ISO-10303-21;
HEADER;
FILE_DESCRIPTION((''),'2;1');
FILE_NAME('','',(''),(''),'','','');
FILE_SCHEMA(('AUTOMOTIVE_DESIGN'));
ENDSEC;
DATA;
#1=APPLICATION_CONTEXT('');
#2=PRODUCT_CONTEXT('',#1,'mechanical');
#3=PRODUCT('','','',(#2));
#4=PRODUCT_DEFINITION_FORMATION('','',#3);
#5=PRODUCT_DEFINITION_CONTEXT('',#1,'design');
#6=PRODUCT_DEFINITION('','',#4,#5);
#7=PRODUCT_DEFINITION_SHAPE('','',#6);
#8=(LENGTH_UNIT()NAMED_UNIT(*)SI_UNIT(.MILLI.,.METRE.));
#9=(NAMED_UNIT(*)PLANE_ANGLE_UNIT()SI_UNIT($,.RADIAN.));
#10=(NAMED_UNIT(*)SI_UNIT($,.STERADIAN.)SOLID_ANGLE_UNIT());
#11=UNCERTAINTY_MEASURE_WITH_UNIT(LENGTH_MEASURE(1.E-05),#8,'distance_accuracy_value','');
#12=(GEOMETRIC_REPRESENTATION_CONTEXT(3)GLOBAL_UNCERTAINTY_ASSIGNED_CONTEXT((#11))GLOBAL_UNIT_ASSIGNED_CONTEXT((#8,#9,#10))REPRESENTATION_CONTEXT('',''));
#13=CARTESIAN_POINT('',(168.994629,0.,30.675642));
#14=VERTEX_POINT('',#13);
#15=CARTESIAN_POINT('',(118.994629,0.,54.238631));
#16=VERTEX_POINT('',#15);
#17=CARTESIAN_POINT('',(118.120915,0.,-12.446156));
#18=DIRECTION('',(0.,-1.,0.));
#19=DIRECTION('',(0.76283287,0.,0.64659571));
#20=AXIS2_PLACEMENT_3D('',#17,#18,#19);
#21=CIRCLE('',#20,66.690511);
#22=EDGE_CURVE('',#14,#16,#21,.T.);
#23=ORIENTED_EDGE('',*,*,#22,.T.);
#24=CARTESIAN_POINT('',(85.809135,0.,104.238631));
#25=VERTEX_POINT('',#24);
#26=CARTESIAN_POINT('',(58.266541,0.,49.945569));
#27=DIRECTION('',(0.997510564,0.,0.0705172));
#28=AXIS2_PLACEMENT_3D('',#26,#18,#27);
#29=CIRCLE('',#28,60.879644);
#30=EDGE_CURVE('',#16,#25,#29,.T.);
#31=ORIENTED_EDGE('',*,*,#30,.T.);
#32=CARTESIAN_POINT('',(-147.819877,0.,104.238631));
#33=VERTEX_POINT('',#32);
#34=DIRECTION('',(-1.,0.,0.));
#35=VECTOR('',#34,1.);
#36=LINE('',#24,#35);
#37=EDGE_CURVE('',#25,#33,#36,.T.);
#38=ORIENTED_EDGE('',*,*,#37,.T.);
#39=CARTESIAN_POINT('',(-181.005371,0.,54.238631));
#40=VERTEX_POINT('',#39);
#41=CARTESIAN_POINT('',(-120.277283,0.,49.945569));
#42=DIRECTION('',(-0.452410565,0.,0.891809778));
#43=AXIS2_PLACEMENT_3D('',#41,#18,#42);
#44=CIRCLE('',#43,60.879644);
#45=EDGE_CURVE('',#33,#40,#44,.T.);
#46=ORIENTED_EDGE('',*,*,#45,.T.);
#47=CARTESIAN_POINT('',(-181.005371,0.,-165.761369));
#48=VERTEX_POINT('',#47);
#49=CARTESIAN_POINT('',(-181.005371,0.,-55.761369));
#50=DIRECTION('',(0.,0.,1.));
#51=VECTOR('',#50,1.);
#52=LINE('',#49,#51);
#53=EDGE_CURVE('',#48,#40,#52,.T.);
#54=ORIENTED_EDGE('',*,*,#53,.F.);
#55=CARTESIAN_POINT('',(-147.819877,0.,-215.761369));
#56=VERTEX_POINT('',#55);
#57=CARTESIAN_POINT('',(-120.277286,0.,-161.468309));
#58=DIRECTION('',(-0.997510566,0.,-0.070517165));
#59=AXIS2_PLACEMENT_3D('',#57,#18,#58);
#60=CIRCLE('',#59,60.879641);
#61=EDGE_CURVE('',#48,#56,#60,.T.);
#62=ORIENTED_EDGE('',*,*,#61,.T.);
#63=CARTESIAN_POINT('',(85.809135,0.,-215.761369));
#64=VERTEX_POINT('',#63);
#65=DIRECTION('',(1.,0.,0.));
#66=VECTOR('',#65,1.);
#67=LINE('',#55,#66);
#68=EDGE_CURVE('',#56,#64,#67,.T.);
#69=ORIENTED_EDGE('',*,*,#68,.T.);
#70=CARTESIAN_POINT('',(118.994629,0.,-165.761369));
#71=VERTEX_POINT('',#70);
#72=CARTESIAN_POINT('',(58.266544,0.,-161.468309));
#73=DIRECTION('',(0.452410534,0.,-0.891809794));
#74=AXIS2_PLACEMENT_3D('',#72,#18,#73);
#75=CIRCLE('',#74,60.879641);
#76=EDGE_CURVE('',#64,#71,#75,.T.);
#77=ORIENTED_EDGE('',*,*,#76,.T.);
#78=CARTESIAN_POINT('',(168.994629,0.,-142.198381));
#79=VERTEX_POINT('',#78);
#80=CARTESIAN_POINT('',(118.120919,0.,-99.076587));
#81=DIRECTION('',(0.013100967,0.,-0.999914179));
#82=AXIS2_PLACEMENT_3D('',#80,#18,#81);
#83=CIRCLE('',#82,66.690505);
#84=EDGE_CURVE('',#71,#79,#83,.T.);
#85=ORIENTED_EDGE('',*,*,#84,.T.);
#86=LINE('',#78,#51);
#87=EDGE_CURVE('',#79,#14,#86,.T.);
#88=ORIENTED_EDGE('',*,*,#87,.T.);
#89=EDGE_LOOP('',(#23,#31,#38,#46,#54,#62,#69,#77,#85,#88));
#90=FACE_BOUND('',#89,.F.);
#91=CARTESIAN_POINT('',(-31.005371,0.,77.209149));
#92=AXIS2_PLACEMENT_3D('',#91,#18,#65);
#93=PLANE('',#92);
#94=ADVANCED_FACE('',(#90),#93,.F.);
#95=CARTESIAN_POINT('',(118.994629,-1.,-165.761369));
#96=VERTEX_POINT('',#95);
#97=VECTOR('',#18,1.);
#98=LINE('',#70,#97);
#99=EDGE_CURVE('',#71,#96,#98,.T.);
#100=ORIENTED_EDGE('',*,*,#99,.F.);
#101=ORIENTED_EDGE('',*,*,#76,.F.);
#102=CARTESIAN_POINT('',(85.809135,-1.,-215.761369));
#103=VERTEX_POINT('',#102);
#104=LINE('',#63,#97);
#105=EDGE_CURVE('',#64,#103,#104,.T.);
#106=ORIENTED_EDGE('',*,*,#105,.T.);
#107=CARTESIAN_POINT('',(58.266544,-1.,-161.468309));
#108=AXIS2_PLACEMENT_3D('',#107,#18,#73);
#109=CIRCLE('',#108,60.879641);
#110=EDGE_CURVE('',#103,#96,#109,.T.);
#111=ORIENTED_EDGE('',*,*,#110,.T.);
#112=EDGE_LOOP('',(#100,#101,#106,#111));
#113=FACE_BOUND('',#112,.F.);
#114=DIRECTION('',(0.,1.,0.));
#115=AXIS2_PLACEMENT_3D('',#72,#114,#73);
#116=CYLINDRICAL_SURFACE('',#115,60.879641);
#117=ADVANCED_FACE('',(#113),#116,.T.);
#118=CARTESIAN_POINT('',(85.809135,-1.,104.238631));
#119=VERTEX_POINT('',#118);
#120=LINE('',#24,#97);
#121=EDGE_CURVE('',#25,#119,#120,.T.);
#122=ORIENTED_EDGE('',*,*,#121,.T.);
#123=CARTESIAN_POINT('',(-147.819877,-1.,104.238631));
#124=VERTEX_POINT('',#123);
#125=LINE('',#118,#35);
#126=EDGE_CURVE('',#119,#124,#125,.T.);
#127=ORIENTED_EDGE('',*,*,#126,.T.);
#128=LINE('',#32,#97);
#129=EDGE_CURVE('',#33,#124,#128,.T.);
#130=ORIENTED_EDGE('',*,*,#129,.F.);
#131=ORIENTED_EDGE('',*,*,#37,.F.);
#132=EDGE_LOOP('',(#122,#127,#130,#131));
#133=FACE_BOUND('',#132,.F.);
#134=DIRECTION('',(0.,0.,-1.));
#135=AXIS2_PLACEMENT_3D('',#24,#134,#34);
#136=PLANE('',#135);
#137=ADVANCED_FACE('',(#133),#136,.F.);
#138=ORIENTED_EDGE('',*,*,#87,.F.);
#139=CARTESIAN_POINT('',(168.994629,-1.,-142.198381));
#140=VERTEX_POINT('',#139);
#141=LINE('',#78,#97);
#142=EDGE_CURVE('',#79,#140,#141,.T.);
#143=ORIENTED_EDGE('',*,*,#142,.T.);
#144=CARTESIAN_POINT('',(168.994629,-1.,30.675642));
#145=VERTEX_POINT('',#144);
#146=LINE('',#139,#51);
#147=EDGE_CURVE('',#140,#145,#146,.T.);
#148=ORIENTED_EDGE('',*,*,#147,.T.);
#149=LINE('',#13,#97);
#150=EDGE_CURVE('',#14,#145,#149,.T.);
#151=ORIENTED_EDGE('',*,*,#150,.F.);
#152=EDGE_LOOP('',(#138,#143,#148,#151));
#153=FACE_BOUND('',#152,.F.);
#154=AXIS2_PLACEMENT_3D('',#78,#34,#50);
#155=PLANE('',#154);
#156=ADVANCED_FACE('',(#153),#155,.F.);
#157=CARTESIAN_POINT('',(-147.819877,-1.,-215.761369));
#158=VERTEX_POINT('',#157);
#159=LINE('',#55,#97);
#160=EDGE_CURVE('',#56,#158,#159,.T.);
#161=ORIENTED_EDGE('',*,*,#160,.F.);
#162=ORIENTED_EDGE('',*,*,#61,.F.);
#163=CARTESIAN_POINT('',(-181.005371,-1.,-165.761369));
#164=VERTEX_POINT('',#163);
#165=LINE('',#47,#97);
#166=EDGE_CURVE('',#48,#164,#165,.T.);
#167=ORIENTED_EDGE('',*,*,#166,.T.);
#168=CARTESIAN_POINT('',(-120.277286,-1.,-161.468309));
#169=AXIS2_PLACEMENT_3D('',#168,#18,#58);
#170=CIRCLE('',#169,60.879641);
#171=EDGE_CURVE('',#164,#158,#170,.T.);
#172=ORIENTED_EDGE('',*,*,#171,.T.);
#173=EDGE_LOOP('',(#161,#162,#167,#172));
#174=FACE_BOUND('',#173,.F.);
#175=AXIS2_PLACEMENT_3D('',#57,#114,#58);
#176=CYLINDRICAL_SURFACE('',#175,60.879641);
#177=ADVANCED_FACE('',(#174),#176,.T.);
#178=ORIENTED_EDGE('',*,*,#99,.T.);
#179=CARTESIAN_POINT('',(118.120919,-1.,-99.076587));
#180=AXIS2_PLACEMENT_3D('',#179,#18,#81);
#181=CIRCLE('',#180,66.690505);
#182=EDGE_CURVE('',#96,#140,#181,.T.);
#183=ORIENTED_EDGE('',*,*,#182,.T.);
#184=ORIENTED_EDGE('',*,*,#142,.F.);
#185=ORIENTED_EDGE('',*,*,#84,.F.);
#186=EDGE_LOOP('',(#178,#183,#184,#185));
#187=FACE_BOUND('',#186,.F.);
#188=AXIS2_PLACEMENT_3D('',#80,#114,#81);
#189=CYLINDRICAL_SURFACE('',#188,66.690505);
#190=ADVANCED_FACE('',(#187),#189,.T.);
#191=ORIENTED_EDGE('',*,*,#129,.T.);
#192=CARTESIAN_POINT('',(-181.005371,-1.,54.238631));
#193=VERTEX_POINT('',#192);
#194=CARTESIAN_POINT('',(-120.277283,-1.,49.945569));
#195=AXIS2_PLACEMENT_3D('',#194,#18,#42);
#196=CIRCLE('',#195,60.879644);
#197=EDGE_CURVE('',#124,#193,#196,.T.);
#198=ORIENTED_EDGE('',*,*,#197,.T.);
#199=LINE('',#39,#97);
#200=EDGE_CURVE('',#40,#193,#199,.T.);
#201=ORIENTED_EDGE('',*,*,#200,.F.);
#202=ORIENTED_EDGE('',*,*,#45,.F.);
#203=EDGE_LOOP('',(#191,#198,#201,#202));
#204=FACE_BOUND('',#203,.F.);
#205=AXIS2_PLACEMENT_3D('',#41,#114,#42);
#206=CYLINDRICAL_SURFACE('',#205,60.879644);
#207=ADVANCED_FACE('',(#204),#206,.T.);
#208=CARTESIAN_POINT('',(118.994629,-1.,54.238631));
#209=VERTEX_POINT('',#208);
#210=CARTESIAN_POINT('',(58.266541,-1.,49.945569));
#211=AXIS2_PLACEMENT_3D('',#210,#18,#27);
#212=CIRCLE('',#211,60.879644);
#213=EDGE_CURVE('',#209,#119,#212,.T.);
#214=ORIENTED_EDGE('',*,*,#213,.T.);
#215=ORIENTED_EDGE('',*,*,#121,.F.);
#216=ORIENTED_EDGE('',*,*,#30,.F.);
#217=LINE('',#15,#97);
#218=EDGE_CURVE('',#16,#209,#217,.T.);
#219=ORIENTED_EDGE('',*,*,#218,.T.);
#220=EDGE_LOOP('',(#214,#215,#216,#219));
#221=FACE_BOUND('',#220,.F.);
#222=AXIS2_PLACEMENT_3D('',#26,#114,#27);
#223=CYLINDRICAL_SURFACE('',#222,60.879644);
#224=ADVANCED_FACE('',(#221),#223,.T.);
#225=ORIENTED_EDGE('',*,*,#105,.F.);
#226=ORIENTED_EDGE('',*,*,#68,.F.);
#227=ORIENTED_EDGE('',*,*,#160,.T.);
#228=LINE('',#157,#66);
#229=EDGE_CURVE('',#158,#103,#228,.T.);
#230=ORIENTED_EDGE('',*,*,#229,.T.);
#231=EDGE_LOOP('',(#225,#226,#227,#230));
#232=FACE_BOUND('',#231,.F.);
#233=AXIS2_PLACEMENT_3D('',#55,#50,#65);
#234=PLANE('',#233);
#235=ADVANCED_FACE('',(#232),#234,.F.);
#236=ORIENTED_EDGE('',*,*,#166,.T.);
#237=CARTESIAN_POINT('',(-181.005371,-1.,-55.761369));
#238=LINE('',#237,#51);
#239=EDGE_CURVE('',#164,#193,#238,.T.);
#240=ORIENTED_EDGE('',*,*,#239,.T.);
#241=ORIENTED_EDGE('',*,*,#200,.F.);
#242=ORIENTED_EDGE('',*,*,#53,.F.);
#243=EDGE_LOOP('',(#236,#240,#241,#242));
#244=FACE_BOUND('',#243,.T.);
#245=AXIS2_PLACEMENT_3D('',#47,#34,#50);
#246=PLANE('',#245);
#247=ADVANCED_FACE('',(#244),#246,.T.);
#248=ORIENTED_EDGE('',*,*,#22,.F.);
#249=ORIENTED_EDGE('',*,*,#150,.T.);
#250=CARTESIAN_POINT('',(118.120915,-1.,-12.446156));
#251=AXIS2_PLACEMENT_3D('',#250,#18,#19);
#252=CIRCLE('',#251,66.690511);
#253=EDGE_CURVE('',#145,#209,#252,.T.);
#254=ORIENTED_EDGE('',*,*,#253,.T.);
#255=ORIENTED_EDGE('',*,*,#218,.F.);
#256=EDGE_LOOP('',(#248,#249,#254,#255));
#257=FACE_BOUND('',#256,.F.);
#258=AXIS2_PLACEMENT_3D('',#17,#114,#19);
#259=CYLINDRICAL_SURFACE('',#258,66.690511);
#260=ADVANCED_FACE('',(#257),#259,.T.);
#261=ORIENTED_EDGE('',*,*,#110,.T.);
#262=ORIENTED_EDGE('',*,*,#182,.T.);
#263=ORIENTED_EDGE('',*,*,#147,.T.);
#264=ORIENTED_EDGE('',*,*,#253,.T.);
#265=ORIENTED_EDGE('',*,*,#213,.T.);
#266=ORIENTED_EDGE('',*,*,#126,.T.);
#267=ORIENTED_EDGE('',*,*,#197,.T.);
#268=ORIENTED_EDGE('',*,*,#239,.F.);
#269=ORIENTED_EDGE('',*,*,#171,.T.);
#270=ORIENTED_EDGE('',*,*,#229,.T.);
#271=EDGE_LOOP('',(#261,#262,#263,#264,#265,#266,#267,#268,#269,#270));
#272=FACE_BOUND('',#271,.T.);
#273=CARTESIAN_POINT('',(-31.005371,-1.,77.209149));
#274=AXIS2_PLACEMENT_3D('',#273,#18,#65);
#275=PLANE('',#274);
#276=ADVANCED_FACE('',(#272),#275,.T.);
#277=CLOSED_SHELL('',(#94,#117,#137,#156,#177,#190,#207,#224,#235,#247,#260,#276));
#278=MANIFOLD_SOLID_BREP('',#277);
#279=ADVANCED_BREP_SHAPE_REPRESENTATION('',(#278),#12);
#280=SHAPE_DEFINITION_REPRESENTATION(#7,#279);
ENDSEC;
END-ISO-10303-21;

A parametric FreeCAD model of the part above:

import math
import FreeCAD as App
import Part
import Sketcher

V = App.Vector

doc = App.newDocument("Part")
body = doc.addObject("PartDesign::Body", "Body")

sketch1 = doc.addObject("Sketcher::SketchObject", "Sketch")
body.addObject(sketch1)
sketch1.AttachmentSupport = (doc.XZ_Plane, [""])
sketch1.MapMode = "FlatFace"
sketch1.addGeometry([
    Part.LineSegment(V(86, 104, 0), V(-148, 104, 0)),
    Part.ArcOfCircle(Part.Circle(V(-120, 50, 0), V(0, 0, 1), 61), math.radians(117), math.radians(176)),
    Part.LineSegment(V(-181, 54, 0), V(-181, -166, 0)),
    Part.ArcOfCircle(Part.Circle(V(-120, -161, 0), V(0, 0, 1), 61), math.radians(-176), math.radians(-117)),
    Part.LineSegment(V(-148, -216, 0), V(86, -216, 0)),
    Part.ArcOfCircle(Part.Circle(V(58, -161, 0), V(0, 0, 1), 61), math.radians(-63), math.radians(-4)),
    Part.ArcOfCircle(Part.Circle(V(118, -99, 0), V(0, 0, 1), 67), math.radians(-89), math.radians(-40)),
    Part.LineSegment(V(169, -142, 0), V(169, 31, 0)),
    Part.ArcOfCircle(Part.Circle(V(118, -12, 0), V(0, 0, 1), 67), math.radians(40), math.radians(89)),
    Part.ArcOfCircle(Part.Circle(V(58, 50, 0), V(0, 0, 1), 61), math.radians(4), math.radians(63)),
], False)
sketch1.addConstraint([
    Sketcher.Constraint("Coincident", 0, 2, 1, 1),
    Sketcher.Constraint("Coincident", 1, 2, 2, 1),
    Sketcher.Constraint("Coincident", 2, 2, 3, 1),
    Sketcher.Constraint("Coincident", 3, 2, 4, 1),
    Sketcher.Constraint("Coincident", 4, 2, 5, 1),
    Sketcher.Constraint("Coincident", 5, 2, 6, 1),
    Sketcher.Constraint("Coincident", 6, 2, 7, 1),
    Sketcher.Constraint("Coincident", 7, 2, 8, 1),
    Sketcher.Constraint("Coincident", 8, 2, 9, 1),
    Sketcher.Constraint("Coincident", 9, 2, 0, 1),
    Sketcher.Constraint("Horizontal", 0),
    Sketcher.Constraint("Vertical", 2),
    Sketcher.Constraint("Horizontal", 4),
    Sketcher.Constraint("Vertical", 7),
    Sketcher.Constraint("Equal", 3, 5),
    Sketcher.Constraint("Equal", 1, 9),
    Sketcher.Constraint("Horizontal", 3, 3, 5, 3),
    Sketcher.Constraint("Horizontal", 1, 3, 9, 3),
    Sketcher.Constraint("Horizontal", 2, 2, 5, 2),
    Sketcher.Constraint("Horizontal", 1, 2, 8, 2),
    Sketcher.Constraint("Vertical", 0, 2, 3, 2),
    Sketcher.Constraint("Vertical", 5, 2, 8, 2),
    Sketcher.Constraint("DistanceY", 2, 2, 2, 1, 220.0),
    Sketcher.Constraint("DistanceY", 1, 2, 0, 2, 50.0),
    Sketcher.Constraint("DistanceY", 3, 2, 2, 2, 50.0),
    Sketcher.Constraint("DistanceX", 5, 2, 6, 2, 50.0),
    Sketcher.Constraint("Radius", 3, 60.879641),
    Sketcher.Constraint("Radius", 8, 66.690511),
    Sketcher.Constraint("Radius", 1, 60.879644),
    Sketcher.Constraint("Radius", 6, 66.690505),
    Sketcher.Constraint("DistanceX", 0, 2, 0, 1, 233.629012),
    Sketcher.Constraint("DistanceX", 1, 3, 6, 3, 238.398202),
    Sketcher.Constraint("DistanceX", 1, 3, 8, 3, 238.398198),
    Sketcher.Constraint("DistanceY", 8, 3, 7, 2, 43.121798),
    Sketcher.Constraint("DistanceY", -1, 1, 1, 3, 49.945569),
    Sketcher.Constraint("DistanceX", -1, 1, 6, 3, 118.120919),
])
pad1 = doc.addObject("PartDesign::Pad", "Pad")
body.addObject(pad1)
pad1.Profile = sketch1
pad1.Length = 1

doc.recompute()
